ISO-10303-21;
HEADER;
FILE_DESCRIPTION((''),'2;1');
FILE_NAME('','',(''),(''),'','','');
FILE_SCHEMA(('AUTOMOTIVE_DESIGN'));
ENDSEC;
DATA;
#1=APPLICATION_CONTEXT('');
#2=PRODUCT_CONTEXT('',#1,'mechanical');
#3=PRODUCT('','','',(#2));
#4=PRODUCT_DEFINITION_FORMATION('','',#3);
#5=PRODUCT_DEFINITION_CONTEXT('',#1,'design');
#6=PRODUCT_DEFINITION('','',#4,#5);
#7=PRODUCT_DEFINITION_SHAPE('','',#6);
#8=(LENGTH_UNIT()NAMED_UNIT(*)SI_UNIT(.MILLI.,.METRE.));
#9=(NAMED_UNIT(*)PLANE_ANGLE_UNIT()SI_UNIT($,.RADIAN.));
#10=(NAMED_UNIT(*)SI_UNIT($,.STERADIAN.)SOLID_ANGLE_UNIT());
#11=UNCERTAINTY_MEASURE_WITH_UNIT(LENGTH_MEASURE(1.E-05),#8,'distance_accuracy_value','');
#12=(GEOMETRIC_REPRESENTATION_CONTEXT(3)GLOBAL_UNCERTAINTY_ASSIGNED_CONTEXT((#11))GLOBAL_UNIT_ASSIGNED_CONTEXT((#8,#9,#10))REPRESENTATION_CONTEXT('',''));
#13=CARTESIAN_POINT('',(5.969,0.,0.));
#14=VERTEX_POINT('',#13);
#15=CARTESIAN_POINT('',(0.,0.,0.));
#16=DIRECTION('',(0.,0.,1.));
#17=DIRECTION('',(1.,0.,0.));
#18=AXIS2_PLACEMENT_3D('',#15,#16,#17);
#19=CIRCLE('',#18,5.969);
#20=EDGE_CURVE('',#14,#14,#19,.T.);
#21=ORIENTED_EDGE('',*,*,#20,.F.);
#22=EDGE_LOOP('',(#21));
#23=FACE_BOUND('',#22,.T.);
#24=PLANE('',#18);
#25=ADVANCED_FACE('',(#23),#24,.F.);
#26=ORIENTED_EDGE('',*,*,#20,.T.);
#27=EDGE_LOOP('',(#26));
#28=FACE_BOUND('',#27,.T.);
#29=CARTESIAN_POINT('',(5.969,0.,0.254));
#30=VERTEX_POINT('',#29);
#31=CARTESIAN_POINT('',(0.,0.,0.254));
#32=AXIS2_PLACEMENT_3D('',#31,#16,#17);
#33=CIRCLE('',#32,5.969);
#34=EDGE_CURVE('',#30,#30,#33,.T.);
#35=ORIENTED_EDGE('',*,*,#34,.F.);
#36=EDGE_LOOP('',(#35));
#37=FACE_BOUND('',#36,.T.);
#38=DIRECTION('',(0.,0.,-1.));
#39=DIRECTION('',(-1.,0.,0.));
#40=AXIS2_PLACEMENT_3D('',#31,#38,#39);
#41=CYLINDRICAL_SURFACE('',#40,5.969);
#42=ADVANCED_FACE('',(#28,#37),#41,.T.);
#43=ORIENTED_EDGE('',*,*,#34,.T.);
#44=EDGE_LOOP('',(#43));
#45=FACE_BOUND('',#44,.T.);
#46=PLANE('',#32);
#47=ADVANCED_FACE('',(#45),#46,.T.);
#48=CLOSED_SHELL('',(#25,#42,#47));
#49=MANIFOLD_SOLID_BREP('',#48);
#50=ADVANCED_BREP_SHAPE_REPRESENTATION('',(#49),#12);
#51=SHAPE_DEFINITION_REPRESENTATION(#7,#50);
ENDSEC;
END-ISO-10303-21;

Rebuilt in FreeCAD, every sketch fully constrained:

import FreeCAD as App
import Part
import Sketcher

V = App.Vector
Q = App.Units.Quantity

doc = App.newDocument("Part")
body = doc.addObject("PartDesign::Body", "Body")

sketch1 = doc.addObject("Sketcher::SketchObject", "Sketch")
body.addObject(sketch1)
sketch1.AttachmentSupport = (doc.XY_Plane, [""])
sketch1.MapMode = "FlatFace"
sketch1.addGeometry(Part.Circle(V(0, 0, 0), V(0, 0, 1), 5.969), False)
sketch1.addConstraint([
    Sketcher.Constraint("Coincident", 0, 3, -1, 1),
    Sketcher.Constraint("Diameter", 0, Q("0.47 in")),
])
pad1 = doc.addObject("PartDesign::Pad", "Pad")
body.addObject(pad1)
pad1.Profile = sketch1
pad1.Length = Q("0.01 in")

doc.recompute()
